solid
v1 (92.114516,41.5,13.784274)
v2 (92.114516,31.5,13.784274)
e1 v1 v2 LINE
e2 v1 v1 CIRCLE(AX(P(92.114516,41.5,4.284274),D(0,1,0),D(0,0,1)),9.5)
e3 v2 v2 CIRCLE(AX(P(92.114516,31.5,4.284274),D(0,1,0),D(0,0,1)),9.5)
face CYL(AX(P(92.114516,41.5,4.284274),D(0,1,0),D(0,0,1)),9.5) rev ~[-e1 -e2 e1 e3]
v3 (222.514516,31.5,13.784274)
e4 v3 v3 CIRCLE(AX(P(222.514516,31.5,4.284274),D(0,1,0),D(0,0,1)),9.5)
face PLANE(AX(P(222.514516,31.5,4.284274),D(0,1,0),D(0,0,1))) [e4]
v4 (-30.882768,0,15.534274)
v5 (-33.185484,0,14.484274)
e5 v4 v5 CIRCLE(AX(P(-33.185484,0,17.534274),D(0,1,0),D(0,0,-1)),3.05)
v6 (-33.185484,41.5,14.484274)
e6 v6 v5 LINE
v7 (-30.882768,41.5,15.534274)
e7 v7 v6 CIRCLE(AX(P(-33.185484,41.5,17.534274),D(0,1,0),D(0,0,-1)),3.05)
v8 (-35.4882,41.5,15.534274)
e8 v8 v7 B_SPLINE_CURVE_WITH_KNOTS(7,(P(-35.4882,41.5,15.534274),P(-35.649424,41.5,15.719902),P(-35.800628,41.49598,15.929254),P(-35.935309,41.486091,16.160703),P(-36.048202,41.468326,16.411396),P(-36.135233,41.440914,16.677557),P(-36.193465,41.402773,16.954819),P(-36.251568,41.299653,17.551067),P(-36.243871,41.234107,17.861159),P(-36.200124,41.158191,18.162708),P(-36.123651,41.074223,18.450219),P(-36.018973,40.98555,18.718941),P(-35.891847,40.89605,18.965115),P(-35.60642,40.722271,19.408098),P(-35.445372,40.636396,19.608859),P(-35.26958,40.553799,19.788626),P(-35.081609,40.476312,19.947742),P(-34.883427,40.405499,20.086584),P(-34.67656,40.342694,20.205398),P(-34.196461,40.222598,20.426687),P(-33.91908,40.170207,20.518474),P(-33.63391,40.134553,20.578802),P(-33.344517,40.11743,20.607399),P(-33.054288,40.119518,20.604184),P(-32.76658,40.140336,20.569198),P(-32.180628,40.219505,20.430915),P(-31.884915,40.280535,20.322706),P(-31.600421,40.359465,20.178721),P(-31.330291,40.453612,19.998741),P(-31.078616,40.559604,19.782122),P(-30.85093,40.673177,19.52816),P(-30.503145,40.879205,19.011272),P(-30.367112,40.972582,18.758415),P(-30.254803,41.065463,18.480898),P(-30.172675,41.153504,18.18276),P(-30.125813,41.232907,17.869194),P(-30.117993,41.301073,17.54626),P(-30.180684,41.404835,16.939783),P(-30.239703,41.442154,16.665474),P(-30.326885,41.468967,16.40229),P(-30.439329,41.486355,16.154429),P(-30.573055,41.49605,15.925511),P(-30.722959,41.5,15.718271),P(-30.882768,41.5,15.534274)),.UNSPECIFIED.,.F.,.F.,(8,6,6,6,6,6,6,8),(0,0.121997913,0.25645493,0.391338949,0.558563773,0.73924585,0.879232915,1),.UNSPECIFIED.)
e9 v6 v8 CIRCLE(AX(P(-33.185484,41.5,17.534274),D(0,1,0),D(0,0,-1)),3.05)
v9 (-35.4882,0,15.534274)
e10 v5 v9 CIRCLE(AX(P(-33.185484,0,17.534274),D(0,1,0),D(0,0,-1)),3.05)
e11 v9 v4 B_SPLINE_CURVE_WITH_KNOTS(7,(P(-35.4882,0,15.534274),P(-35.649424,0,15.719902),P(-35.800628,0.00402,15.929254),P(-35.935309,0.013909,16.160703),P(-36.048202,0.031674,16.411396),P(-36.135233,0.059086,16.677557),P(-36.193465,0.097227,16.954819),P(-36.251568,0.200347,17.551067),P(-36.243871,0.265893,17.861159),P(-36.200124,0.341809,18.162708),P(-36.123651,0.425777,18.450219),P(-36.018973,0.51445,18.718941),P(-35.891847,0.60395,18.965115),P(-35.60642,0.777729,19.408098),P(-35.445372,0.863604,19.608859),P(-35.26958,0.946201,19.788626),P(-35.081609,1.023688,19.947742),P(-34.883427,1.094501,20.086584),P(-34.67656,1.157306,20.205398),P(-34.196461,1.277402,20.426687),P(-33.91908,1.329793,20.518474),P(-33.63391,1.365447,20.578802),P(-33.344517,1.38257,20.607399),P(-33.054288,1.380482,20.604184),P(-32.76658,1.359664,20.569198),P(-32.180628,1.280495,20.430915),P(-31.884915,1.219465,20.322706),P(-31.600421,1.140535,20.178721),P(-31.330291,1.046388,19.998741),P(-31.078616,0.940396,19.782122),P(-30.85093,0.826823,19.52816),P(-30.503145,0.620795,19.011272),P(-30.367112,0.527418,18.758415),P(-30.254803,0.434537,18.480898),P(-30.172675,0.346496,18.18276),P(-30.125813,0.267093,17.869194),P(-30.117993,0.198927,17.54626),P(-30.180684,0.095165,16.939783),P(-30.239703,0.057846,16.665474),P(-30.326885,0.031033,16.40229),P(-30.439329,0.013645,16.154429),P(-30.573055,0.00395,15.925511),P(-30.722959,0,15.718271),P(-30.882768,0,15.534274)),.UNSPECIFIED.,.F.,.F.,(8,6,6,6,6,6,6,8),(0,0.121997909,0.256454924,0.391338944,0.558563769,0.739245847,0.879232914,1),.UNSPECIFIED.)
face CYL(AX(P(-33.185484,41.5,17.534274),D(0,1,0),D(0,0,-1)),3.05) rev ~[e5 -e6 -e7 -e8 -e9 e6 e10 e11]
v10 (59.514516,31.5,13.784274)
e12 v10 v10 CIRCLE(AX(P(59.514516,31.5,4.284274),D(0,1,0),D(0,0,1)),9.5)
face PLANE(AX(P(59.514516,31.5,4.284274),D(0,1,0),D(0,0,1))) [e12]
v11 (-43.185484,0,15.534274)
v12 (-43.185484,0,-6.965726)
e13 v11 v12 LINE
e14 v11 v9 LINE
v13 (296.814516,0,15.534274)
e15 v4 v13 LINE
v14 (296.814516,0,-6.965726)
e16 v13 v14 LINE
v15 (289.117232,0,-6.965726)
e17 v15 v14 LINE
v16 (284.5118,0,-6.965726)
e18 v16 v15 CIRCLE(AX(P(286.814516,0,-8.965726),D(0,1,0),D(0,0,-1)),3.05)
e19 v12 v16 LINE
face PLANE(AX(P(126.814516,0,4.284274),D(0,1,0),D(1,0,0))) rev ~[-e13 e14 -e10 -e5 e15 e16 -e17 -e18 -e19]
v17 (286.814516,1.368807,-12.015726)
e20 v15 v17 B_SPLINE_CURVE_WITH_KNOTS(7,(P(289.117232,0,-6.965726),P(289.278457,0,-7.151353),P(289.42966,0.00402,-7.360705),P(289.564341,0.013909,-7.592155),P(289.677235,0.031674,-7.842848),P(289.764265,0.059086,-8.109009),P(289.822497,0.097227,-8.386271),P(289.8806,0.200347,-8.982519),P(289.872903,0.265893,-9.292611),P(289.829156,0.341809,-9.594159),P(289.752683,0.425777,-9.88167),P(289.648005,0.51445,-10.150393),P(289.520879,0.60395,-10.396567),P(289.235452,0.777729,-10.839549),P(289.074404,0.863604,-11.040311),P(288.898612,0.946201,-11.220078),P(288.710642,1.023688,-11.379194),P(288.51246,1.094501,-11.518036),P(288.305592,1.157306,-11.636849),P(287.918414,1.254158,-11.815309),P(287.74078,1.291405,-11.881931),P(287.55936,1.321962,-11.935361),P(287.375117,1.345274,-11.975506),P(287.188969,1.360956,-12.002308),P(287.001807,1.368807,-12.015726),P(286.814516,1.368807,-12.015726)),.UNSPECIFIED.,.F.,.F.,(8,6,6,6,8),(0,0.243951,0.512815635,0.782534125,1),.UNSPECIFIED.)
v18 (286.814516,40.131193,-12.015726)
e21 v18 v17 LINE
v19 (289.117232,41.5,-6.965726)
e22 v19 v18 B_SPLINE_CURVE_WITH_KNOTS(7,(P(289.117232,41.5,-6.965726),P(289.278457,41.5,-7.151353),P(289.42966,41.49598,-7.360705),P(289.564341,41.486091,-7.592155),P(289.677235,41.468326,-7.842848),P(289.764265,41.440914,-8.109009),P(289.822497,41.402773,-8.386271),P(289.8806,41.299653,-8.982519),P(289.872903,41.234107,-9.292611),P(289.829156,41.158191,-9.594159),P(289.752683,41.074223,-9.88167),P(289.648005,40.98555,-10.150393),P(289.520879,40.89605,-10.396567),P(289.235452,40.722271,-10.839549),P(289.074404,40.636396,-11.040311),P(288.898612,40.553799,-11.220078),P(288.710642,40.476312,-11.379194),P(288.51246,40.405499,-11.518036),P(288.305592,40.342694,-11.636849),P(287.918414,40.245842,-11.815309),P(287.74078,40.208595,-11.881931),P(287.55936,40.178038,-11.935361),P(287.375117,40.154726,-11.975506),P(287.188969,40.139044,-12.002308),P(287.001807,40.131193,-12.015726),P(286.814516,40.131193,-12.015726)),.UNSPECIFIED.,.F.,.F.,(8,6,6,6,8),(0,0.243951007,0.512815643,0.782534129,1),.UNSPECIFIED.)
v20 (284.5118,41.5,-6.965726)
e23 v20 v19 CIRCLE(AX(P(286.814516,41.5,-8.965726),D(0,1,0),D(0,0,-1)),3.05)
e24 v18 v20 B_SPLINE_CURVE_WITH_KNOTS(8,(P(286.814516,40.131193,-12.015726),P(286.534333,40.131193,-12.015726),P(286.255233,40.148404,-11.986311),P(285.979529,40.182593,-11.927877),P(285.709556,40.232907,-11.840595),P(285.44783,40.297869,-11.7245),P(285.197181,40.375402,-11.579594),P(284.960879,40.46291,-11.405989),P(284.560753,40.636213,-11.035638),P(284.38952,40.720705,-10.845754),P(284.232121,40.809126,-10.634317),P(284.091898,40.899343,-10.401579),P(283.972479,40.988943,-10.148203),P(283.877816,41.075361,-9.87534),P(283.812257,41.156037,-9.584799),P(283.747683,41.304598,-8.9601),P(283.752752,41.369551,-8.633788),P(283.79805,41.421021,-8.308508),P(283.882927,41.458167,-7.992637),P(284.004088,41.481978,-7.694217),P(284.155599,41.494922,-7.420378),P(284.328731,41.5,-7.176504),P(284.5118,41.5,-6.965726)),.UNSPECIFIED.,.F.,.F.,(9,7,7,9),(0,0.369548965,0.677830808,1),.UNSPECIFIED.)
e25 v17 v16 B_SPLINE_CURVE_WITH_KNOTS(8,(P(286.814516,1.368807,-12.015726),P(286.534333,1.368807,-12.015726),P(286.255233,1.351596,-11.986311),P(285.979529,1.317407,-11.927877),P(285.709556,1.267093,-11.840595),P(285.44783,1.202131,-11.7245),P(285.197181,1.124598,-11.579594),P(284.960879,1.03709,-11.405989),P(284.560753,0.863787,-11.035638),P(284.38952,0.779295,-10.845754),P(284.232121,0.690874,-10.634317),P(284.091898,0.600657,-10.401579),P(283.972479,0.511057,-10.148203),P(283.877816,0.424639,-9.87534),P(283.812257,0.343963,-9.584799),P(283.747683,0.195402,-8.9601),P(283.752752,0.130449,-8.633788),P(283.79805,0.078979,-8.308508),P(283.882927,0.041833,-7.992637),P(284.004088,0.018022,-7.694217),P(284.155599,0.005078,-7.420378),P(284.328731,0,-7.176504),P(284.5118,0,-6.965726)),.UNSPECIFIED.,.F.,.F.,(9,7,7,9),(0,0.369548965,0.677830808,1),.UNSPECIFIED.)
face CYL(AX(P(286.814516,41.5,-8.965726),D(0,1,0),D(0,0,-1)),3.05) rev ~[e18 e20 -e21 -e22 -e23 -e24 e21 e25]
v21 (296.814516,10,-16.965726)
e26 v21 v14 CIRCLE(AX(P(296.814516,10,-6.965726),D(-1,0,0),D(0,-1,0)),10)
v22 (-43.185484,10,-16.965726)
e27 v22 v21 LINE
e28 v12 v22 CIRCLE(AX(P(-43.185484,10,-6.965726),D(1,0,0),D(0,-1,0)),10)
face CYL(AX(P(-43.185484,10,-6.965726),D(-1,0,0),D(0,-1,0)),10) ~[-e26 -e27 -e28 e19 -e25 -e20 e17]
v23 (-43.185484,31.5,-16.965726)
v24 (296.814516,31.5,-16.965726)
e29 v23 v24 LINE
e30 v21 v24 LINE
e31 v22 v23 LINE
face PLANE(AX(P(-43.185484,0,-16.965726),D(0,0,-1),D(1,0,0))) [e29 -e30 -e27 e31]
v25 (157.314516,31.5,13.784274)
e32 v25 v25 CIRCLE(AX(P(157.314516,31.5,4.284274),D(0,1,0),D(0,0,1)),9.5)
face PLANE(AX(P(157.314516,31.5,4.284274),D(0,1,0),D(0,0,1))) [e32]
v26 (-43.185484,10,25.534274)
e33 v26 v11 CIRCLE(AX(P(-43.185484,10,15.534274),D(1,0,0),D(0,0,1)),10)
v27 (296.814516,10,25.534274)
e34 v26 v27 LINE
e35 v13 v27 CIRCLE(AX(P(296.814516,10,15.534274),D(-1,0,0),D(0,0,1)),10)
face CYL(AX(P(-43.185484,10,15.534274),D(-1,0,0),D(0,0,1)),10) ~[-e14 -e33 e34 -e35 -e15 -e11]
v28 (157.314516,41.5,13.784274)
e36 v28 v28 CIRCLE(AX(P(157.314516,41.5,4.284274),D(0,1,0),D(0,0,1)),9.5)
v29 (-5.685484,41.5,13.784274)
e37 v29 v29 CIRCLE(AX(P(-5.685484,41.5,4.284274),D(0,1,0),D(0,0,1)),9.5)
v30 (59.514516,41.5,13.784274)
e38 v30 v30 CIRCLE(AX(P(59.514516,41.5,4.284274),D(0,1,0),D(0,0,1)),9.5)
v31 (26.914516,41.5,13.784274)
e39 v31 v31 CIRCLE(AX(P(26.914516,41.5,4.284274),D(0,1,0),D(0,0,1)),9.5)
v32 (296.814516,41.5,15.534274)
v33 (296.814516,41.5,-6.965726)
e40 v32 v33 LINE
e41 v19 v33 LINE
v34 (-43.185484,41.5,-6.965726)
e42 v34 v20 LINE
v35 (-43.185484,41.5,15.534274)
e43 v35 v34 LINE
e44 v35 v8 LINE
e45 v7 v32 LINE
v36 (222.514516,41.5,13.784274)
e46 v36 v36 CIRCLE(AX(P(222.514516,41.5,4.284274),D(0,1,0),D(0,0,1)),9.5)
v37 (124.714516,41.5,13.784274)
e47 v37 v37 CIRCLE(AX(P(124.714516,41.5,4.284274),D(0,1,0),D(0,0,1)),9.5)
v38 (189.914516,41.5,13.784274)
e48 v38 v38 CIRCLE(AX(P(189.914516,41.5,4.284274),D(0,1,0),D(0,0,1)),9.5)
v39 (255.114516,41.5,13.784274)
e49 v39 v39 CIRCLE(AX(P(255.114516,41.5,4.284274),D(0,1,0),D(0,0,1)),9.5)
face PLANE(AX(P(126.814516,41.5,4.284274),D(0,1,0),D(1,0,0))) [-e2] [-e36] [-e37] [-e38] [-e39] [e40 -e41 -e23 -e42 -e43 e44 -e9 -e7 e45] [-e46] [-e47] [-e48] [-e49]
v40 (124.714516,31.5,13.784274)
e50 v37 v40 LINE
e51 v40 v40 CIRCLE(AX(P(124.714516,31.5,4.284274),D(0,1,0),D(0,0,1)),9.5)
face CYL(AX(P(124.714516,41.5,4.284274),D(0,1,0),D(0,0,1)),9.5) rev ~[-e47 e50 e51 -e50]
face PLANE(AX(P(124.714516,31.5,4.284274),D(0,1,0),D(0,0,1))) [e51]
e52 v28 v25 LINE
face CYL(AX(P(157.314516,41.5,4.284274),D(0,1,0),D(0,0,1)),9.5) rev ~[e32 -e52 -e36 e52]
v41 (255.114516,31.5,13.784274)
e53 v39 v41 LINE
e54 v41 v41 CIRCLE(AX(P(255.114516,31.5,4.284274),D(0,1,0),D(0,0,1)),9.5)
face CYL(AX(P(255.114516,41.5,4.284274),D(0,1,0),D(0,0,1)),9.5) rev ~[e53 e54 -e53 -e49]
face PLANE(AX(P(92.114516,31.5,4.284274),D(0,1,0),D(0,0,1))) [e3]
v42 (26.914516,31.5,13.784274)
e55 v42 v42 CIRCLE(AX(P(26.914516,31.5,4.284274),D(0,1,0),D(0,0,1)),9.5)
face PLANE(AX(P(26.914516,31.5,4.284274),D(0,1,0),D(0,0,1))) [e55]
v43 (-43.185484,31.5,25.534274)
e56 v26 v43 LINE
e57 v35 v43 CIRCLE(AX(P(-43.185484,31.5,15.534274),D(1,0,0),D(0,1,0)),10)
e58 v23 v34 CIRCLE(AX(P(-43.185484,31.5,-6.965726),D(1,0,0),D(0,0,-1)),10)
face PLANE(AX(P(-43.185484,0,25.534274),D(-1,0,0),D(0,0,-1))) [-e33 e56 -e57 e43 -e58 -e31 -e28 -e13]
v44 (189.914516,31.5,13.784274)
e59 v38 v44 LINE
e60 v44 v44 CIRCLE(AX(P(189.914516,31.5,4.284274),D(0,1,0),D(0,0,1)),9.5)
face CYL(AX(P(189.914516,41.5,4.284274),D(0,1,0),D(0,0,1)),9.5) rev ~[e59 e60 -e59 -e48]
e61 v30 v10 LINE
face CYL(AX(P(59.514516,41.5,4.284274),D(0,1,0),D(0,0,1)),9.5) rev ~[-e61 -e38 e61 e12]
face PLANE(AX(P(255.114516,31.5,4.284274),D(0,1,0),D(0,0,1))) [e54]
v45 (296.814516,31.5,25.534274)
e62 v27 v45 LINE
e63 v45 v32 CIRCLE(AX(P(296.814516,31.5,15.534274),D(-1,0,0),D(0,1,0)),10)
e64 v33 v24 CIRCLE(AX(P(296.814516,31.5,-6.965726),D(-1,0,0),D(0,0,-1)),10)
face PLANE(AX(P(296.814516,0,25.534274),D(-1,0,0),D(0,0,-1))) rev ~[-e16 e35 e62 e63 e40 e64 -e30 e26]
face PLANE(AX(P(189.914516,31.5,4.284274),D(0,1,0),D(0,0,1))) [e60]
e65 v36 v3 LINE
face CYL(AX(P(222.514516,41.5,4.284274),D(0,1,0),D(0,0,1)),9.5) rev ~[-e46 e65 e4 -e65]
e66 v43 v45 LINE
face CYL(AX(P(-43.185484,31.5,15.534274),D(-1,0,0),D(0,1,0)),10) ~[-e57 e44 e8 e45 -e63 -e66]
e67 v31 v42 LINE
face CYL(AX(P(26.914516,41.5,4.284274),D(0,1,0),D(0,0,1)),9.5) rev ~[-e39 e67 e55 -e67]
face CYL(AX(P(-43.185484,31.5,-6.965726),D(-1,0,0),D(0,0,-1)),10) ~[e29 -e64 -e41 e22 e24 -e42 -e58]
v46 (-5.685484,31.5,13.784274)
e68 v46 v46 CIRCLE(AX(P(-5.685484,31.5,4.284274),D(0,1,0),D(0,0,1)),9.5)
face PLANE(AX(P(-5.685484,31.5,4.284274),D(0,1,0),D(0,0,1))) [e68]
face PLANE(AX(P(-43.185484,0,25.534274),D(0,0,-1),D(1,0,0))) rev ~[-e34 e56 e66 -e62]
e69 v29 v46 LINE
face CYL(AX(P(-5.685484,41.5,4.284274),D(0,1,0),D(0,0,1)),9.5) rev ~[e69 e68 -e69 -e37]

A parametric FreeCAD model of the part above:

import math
import FreeCAD as App
import Part
import Sketcher

doc = App.newDocument("Part")
params = doc.addObject("Spreadsheet::Sheet", "Params")
for row, (alias, value) in enumerate([
    ("sketch1_width", "340 mm"),
    ("sketch1_height", "42.5 mm"),
    ("pad1_length", "41.5 mm"),
    ("sketch2_diameter", "19 mm"),
    ("pocket1_length", "10 mm"),
    ("sketch3_diameter", "6.1 mm"),
    ("sketch4_radius", "10 mm"),
], start=1):
    params.set(f"A{row}", alias)
    params.set(f"B{row}", "=" + value)
    params.setAlias(f"B{row}", alias)

body = doc.addObject("PartDesign::Body", "Body")

# Sketch on XZ plane
sketch1 = body.newObject("Sketcher::SketchObject", "Sketch")
sketch1.AttachmentSupport = (doc.getObject("XZ_Plane"), [""])
sketch1.MapMode = "FlatFace"
sketch1.addGeometry([
    Part.LineSegment(App.Vector(-43.185484, -16.965726, 0), App.Vector(-43.185484, 25.534274, 0)),
    Part.LineSegment(App.Vector(-43.185484, 25.534274, 0), App.Vector(296.814516, 25.534274, 0)),
    Part.LineSegment(App.Vector(296.814516, 25.534274, 0), App.Vector(296.814516, -16.965726, 0)),
    Part.LineSegment(App.Vector(296.814516, -16.965726, 0), App.Vector(-43.185484, -16.965726, 0)),
], False)
sketch1.addConstraint([
    Sketcher.Constraint("Coincident", 0, 2, 1, 1),
    Sketcher.Constraint("Coincident", 1, 2, 2, 1),
    Sketcher.Constraint("Coincident", 2, 2, 3, 1),
    Sketcher.Constraint("Coincident", 3, 2, 0, 1),
    Sketcher.Constraint("Vertical", 0),
    Sketcher.Constraint("Horizontal", 1),
    Sketcher.Constraint("Vertical", 2),
    Sketcher.Constraint("Horizontal", 3),
    Sketcher.Constraint("DistanceX", 1, 1, 1, 2, 340.0),
    Sketcher.Constraint("DistanceY", 0, 1, 0, 2, 42.5),
    Sketcher.Constraint("DistanceX", 0, 2, -1, 1, 43.185484),
    Sketcher.Constraint("DistanceY", -1, 1, 0, 2, 25.534274),
])
sketch1.setExpression("Constraints[8]", "Params.sketch1_width")
sketch1.setExpression("Constraints[9]", "Params.sketch1_height")
pad1 = body.newObject("PartDesign::Pad", "Pad")
pad1.Profile = sketch1
pad1.setExpression("Length", "Params.pad1_length")
pad1.Reversed = True

# Sketch on XZ plane
sketch2 = body.newObject("Sketcher::SketchObject", "Sketch001")
sketch2.AttachmentSupport = (doc.getObject("XZ_Plane"), [""])
sketch2.MapMode = "FlatFace"
sketch2.AttachmentOffset = App.Placement(App.Vector(0, 0, -41.5), App.Rotation())
sketch2.addGeometry([
    Part.Circle(App.Vector(-5.685484, 4.284274, 0), App.Vector(0, 0, 1), 9.5),  # 0
    Part.Circle(App.Vector(26.914516, 4.284274, 0), App.Vector(0, 0, 1), 9.5),  # 1
    Part.Circle(App.Vector(59.514516, 4.284274, 0), App.Vector(0, 0, 1), 9.5),  # 2
    Part.Circle(App.Vector(92.114516, 4.284274, 0), App.Vector(0, 0, 1), 9.5),  # 3
    Part.Circle(App.Vector(124.714516, 4.284274, 0), App.Vector(0, 0, 1), 9.5),  # 4
    Part.Circle(App.Vector(157.314516, 4.284274, 0), App.Vector(0, 0, 1), 9.5),  # 5
    Part.Circle(App.Vector(189.914516, 4.284274, 0), App.Vector(0, 0, 1), 9.5),  # 6
    Part.Circle(App.Vector(222.514516, 4.284274, 0), App.Vector(0, 0, 1), 9.5),  # 7
    Part.Circle(App.Vector(255.114516, 4.284274, 0), App.Vector(0, 0, 1), 9.5),  # 8
], False)
sketch2.addConstraint([
    Sketcher.Constraint("Equal", 0, 1),
    Sketcher.Constraint("Equal", 1, 2),
    Sketcher.Constraint("Equal", 2, 3),
    Sketcher.Constraint("Equal", 3, 4),
    Sketcher.Constraint("Equal", 4, 5),
    Sketcher.Constraint("Equal", 5, 6),
    Sketcher.Constraint("Equal", 6, 7),
    Sketcher.Constraint("Equal", 7, 8),
    Sketcher.Constraint("Horizontal", 0, 3, 1, 3),
    Sketcher.Constraint("Horizontal", 1, 3, 2, 3),
    Sketcher.Constraint("Horizontal", 2, 3, 3, 3),
    Sketcher.Constraint("Horizontal", 3, 3, 4, 3),
    Sketcher.Constraint("Horizontal", 4, 3, 5, 3),
    Sketcher.Constraint("Horizontal", 5, 3, 6, 3),
    Sketcher.Constraint("Horizontal", 6, 3, 7, 3),
    Sketcher.Constraint("Horizontal", 7, 3, 8, 3),
    Sketcher.Constraint("Diameter", 0, 19.0),
    Sketcher.Constraint("DistanceX", 0, 3, 5, 3, 163.0),
    Sketcher.Constraint("DistanceX", 1, 3, 6, 3, 163.0),
    Sketcher.Constraint("DistanceX", 2, 3, 7, 3, 163.0),
    Sketcher.Constraint("DistanceX", 3, 3, 8, 3, 163.0),
    Sketcher.Constraint("DistanceX", 0, 3, 1, 3, 32.6),
    Sketcher.Constraint("DistanceX", 1, 3, 2, 3, 32.6),
    Sketcher.Constraint("DistanceX", 2, 3, 3, 3, 32.6),
    Sketcher.Constraint("DistanceX", 3, 3, 4, 3, 32.6),
    Sketcher.Constraint("DistanceX", 0, 3, -1, 1, 5.685484),
    Sketcher.Constraint("DistanceY", -1, 1, 0, 3, 4.284274),
])
sketch2.setExpression("Constraints[16]", "Params.sketch2_diameter")
pocket1 = body.newObject("PartDesign::Pocket", "Pocket")
pocket1.Profile = sketch2
pocket1.setExpression("Length", "Params.pocket1_length")
pocket1.Reversed = True

# Sketch on XZ plane
sketch3 = body.newObject("Sketcher::SketchObject", "Sketch002")
sketch3.AttachmentSupport = (doc.getObject("XZ_Plane"), [""])
sketch3.MapMode = "FlatFace"
sketch3.AttachmentOffset = App.Placement(App.Vector(0, 0, -41.5), App.Rotation())
sketch3.addGeometry([
    Part.Circle(App.Vector(286.814516, -8.965726, 0), App.Vector(0, 0, 1), 3.05),
    Part.Circle(App.Vector(-33.185484, 17.534274, 0), App.Vector(0, 0, 1), 3.05),
], False)
sketch3.addConstraint([
    Sketcher.Constraint("Equal", 0, 1),
    Sketcher.Constraint("Diameter", 0, 6.1),
    Sketcher.Constraint("DistanceX", 1, 3, 0, 3, 320.0),
    Sketcher.Constraint("DistanceY", 0, 3, 1, 3, 26.5),
    Sketcher.Constraint("DistanceX", -1, 1, 0, 3, 286.814516),
    Sketcher.Constraint("DistanceY", 0, 3, -1, 1, 8.965726),
])
sketch3.setExpression("Constraints[1]", "Params.sketch3_diameter")
pocket2 = body.newObject("PartDesign::Pocket", "Pocket001")
pocket2.Profile = sketch3
pocket2.Type = "ThroughAll"
pocket2.Reversed = True

# Sketch on YZ plane
sketch4 = body.newObject("Sketcher::SketchObject", "Sketch003")
sketch4.AttachmentSupport = (doc.getObject("YZ_Plane"), [""])
sketch4.MapMode = "FlatFace"
sketch4.AttachmentOffset = App.Placement(App.Vector(0, 0, -43.185484), App.Rotation())
sketch4.addGeometry([
    Part.LineSegment(App.Vector(41.5, -6.965726, 0), App.Vector(41.5, -16.965726, 0)),  # 0
    Part.LineSegment(App.Vector(41.5, -16.965726, 0), App.Vector(31.5, -16.965726, 0)),  # 1
    Part.ArcOfCircle(Part.Circle(App.Vector(31.5, -6.965726, 0), App.Vector(0, 0, 1), 10), math.radians(-90), math.radians(0)),  # 2
    Part.ArcOfCircle(Part.Circle(App.Vector(10, -6.965726, 0), App.Vector(0, 0, 1), 10), math.radians(180), math.radians(270)),  # 3
    Part.LineSegment(App.Vector(10, -16.965726, 0), App.Vector(0, -16.965726, 0)),  # 4
    Part.LineSegment(App.Vector(0, -16.965726, 0), App.Vector(0, -6.965726, 0)),  # 5
    Part.LineSegment(App.Vector(0, 25.534274, 0), App.Vector(10, 25.534274, 0)),  # 6
    Part.ArcOfCircle(Part.Circle(App.Vector(10, 15.534274, 0), App.Vector(0, 0, 1), 10), math.radians(90), math.radians(180)),  # 7
    Part.LineSegment(App.Vector(0, 15.534274, 0), App.Vector(0, 25.534274, 0)),  # 8
    Part.LineSegment(App.Vector(41.5, 25.534274, 0), App.Vector(41.5, 15.534274, 0)),  # 9
    Part.ArcOfCircle(Part.Circle(App.Vector(31.5, 15.534274, 0), App.Vector(0, 0, 1), 10), math.radians(0), math.radians(90)),  # 10
    Part.LineSegment(App.Vector(31.5, 25.534274, 0), App.Vector(41.5, 25.534274, 0)),  # 11
], False)
sketch4.addConstraint([
    Sketcher.Constraint("Coincident", 0, 2, 1, 1),
    Sketcher.Constraint("Tangent", 1, 2, 2, 1),
    Sketcher.Constraint("Tangent", 2, 2, 0, 1),
    Sketcher.Constraint("Tangent", 3, 2, 4, 1),
    Sketcher.Constraint("Coincident", 4, 2, 5, 1),
    Sketcher.Constraint("Tangent", 5, 2, 3, 1),
    Sketcher.Constraint("Tangent", 6, 2, 7, 1),
    Sketcher.Constraint("Tangent", 7, 2, 8, 1),
    Sketcher.Constraint("Coincident", 8, 2, 6, 1),
    Sketcher.Constraint("Tangent", 9, 2, 10, 1),
    Sketcher.Constraint("Tangent", 10, 2, 11, 1),
    Sketcher.Constraint("Coincident", 11, 2, 9, 1),
    Sketcher.Constraint("Vertical", 0),
    Sketcher.Constraint("Horizontal", 1),
    Sketcher.Constraint("Horizontal", 4),
    Sketcher.Constraint("Vertical", 5),
    Sketcher.Constraint("Horizontal", 6),
    Sketcher.Constraint("Vertical", 8),
    Sketcher.Constraint("Vertical", 9),
    Sketcher.Constraint("Horizontal", 11),
    Sketcher.Constraint("Equal", 2, 3),
    Sketcher.Constraint("Equal", 3, 7),
    Sketcher.Constraint("Equal", 7, 10),
    Sketcher.Constraint("PointOnObject", 4, 2, -2),
    Sketcher.Constraint("PointOnObject", 7, 2, -2),
    Sketcher.Constraint("Horizontal", 2, 3, 3, 3),
    Sketcher.Constraint("Horizontal", 7, 3, 10, 3),
    Sketcher.Constraint("Vertical", 2, 3, 10, 3),
    Sketcher.Constraint("Radius", 2, 10.0),
    Sketcher.Constraint("DistanceX", -1, 1, 2, 3, 31.5),
    Sketcher.Constraint("DistanceY", 3, 3, 7, 3, 22.5),
    Sketcher.Constraint("DistanceY", 2, 3, -1, 1, 6.965726),
])
sketch4.setExpression("Constraints[28]", "Params.sketch4_radius")
pocket3 = body.newObject("PartDesign::Pocket", "Pocket002")
pocket3.Profile = sketch4
pocket3.Type = "ThroughAll"
pocket3.Reversed = True

doc.recompute()
